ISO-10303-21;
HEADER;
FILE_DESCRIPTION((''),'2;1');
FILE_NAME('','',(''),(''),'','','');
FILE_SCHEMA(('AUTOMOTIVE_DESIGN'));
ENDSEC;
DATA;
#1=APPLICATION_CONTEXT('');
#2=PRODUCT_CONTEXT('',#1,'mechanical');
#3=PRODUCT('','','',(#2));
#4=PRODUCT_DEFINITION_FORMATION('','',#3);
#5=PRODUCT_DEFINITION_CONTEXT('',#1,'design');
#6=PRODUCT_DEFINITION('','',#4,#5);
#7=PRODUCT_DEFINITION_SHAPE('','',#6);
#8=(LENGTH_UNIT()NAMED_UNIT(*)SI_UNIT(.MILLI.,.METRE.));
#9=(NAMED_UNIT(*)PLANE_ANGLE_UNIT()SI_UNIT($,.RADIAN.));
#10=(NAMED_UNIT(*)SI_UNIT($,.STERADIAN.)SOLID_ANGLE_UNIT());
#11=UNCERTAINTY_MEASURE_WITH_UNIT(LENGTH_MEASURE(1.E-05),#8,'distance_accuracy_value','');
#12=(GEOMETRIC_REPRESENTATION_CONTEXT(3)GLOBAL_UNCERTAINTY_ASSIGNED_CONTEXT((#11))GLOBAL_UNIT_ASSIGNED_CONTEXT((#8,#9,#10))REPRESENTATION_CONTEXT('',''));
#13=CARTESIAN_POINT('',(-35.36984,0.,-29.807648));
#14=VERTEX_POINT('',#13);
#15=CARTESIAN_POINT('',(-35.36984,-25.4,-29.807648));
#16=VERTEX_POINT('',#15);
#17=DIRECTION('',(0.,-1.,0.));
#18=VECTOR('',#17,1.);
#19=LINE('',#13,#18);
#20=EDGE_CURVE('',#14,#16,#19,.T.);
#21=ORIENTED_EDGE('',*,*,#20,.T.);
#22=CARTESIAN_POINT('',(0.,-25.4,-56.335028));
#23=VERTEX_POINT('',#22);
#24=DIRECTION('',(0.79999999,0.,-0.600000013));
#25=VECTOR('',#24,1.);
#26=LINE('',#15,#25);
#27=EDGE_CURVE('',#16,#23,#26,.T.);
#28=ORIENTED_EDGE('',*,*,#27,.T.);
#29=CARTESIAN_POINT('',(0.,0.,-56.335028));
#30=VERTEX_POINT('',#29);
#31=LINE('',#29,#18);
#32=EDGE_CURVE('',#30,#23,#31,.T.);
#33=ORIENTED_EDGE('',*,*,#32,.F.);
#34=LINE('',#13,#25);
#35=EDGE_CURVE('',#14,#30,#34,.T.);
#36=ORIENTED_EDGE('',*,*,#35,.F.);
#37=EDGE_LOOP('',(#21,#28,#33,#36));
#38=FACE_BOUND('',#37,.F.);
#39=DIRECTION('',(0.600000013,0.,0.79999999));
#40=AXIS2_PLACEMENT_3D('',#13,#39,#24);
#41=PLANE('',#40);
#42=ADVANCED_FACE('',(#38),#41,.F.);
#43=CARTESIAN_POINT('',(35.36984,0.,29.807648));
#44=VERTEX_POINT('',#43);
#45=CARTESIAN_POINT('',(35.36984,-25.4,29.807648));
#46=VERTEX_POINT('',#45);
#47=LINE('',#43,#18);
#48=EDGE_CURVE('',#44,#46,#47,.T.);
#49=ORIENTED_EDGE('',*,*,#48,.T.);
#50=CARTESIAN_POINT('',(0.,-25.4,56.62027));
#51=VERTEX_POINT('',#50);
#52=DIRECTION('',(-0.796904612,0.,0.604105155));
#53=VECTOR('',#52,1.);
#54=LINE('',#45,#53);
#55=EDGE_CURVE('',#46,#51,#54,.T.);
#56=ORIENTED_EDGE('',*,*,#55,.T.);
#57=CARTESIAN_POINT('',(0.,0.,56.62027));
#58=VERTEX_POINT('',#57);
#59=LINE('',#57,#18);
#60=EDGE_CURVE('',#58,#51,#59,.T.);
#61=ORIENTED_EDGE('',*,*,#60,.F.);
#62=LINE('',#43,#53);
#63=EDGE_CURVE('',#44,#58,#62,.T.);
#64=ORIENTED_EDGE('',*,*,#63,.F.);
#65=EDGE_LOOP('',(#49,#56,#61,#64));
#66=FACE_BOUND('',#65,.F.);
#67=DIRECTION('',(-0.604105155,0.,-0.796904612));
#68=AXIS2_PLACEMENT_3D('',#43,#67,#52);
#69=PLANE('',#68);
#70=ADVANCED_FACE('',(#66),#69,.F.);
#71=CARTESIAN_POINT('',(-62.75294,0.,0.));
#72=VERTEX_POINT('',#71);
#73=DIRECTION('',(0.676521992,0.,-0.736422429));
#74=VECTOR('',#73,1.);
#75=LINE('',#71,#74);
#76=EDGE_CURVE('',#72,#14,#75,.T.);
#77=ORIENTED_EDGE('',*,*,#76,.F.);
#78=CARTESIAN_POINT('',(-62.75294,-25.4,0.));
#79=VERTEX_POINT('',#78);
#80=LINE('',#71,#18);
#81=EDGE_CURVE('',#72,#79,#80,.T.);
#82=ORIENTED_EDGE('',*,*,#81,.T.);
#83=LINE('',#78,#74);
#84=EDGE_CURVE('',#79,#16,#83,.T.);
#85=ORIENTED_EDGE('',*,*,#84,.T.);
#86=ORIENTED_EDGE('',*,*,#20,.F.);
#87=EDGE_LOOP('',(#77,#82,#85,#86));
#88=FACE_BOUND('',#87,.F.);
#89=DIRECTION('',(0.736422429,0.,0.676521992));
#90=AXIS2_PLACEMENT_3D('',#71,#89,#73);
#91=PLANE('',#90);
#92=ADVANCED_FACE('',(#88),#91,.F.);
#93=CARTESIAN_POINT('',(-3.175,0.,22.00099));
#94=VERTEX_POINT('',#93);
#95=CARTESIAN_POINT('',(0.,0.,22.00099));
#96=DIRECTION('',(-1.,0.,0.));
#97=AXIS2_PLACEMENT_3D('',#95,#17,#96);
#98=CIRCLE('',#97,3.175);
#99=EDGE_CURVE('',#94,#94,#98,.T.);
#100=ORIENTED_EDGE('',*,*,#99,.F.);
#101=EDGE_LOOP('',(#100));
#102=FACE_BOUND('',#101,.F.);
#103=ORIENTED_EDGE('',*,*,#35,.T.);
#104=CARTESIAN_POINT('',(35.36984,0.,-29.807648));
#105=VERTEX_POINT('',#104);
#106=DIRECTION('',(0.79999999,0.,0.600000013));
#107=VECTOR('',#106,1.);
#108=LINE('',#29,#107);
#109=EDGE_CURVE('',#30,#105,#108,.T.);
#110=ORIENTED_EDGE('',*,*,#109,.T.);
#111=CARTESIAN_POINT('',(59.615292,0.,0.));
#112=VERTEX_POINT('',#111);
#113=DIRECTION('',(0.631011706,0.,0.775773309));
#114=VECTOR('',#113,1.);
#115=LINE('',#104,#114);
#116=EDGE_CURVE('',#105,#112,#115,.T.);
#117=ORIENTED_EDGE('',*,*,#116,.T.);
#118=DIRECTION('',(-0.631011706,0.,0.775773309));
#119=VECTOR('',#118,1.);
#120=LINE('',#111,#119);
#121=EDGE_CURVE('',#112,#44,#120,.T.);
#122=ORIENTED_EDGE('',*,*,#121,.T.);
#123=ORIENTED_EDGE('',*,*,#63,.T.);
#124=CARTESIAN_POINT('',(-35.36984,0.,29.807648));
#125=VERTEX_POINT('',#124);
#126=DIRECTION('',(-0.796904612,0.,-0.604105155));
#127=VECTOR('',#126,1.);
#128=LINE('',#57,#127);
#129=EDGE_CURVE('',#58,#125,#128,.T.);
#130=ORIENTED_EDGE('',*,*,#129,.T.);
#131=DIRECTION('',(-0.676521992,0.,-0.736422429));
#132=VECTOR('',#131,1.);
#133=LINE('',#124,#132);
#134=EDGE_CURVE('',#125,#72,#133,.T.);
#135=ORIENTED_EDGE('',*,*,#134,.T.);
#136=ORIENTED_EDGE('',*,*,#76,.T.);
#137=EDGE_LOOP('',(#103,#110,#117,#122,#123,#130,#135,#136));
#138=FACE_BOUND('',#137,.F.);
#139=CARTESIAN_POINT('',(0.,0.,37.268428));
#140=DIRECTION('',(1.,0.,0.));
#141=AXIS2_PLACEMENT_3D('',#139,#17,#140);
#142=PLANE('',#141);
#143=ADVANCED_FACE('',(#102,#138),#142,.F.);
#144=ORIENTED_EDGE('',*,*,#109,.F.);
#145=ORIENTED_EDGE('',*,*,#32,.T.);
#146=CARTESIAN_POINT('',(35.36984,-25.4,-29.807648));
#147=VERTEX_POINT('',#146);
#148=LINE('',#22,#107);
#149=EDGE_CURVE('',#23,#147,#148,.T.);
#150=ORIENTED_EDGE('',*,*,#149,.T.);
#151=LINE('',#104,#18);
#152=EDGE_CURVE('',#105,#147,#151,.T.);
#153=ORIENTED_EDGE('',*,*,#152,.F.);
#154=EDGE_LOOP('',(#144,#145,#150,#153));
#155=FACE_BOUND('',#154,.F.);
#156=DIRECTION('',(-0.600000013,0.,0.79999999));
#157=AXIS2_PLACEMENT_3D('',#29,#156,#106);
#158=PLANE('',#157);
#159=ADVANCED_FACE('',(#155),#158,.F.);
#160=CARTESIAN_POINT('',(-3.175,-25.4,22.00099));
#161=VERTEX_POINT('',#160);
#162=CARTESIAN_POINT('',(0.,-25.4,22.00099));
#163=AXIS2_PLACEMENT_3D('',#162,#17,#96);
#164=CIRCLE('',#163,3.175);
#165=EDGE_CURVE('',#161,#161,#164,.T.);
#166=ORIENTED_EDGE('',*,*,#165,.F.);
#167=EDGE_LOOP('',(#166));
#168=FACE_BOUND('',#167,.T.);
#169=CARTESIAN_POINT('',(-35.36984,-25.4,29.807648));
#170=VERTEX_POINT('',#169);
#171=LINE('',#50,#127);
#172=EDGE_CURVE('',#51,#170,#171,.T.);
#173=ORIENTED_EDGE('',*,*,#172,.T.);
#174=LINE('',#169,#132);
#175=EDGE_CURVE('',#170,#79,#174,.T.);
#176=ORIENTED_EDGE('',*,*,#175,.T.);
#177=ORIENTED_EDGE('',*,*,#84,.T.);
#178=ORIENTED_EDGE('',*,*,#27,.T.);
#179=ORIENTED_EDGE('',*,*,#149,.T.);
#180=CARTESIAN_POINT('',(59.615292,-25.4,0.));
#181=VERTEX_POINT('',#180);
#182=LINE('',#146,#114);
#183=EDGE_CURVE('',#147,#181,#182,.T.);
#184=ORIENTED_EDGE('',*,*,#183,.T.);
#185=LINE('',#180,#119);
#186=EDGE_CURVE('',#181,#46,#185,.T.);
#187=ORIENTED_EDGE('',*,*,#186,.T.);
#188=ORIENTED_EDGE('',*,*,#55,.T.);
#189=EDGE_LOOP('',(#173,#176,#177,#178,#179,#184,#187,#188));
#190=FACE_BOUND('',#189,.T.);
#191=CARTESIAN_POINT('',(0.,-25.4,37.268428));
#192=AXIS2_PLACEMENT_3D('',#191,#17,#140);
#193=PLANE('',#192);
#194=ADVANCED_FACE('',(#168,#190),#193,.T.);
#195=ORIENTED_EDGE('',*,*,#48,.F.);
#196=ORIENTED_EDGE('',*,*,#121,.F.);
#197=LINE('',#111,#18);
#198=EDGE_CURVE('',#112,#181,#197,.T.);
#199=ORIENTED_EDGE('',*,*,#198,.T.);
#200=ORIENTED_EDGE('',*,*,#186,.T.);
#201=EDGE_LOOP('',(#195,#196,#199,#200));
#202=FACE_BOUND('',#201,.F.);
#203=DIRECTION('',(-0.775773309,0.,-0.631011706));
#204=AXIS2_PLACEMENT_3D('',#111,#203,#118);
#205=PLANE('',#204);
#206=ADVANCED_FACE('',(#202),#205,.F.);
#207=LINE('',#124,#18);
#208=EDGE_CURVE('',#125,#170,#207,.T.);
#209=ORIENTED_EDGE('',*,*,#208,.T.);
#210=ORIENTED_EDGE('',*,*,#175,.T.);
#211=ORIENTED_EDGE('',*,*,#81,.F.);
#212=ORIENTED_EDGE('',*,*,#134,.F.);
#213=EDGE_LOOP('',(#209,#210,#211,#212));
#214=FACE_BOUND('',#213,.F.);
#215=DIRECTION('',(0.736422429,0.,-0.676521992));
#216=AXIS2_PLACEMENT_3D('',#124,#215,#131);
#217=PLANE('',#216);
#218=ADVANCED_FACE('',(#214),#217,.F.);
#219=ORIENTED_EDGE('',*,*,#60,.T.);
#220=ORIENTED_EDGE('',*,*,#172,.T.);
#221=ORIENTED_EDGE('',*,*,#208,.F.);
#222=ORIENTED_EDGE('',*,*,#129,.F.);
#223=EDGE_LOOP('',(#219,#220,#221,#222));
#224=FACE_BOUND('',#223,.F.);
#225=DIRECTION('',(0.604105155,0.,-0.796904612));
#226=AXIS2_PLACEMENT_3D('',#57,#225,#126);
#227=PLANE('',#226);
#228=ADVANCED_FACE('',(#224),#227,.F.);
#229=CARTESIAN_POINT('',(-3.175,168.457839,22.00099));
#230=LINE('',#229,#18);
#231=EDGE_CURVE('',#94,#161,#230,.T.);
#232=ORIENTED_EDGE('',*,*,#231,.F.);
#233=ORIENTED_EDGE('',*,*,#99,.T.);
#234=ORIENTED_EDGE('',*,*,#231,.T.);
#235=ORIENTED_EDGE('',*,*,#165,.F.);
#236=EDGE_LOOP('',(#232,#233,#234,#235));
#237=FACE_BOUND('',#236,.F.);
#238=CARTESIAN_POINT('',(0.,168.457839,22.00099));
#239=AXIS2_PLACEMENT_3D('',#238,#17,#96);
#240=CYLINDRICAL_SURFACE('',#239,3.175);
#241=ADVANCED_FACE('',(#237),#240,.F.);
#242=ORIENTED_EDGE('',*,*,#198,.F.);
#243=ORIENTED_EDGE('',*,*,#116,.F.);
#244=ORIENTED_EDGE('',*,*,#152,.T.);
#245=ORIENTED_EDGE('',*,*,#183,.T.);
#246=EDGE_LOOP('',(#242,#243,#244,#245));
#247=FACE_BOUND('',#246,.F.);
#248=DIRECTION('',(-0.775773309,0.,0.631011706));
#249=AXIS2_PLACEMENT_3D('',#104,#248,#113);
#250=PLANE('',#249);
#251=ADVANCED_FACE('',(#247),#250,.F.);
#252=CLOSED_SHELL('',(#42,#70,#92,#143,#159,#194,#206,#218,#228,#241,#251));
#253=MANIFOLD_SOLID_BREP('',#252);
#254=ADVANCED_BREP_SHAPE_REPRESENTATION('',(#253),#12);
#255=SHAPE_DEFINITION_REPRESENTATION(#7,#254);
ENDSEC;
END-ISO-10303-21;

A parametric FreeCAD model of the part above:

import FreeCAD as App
import Part
import Sketcher
Q = App.Units.Quantity

doc = App.newDocument("Part")
body = doc.addObject("PartDesign::Body", "Body")

sketch1 = body.newObject("Sketcher::SketchObject", "Sketch")
sketch1.AttachmentSupport = (doc.getObject("XZ_Plane"), [""])
sketch1.MapMode = "FlatFace"
sketch1.addGeometry(Part.LineSegment(App.Vector(0, 57, 0), App.Vector(-35, 30, 0)), False)
sketch1.addGeometry(Part.LineSegment(App.Vector(-35, 30, 0), App.Vector(-63, 0, 0)), False)
sketch1.addGeometry(Part.LineSegment(App.Vector(-63, 0, 0), App.Vector(-35, -30, 0)), False)
sketch1.addGeometry(Part.LineSegment(App.Vector(-35, -30, 0), App.Vector(0, -56, 0)), False)
sketch1.addGeometry(Part.LineSegment(App.Vector(0, -56, 0), App.Vector(35, -30, 0)), False)
sketch1.addGeometry(Part.LineSegment(App.Vector(35, -30, 0), App.Vector(60, 0, 0)), False)
sketch1.addGeometry(Part.LineSegment(App.Vector(60, 0, 0), App.Vector(35, 30, 0)), False)
sketch1.addGeometry(Part.LineSegment(App.Vector(35, 30, 0), App.Vector(0, 57, 0)), False)
sketch1.addConstraint(Sketcher.Constraint("Coincident", 0, 2, 1, 1))
sketch1.addConstraint(Sketcher.Constraint("Coincident", 1, 2, 2, 1))
sketch1.addConstraint(Sketcher.Constraint("Coincident", 2, 2, 3, 1))
sketch1.addConstraint(Sketcher.Constraint("Coincident", 3, 2, 4, 1))
sketch1.addConstraint(Sketcher.Constraint("Coincident", 4, 2, 5, 1))
sketch1.addConstraint(Sketcher.Constraint("Coincident", 5, 2, 6, 1))
sketch1.addConstraint(Sketcher.Constraint("Coincident", 6, 2, 7, 1))
sketch1.addConstraint(Sketcher.Constraint("Coincident", 7, 2, 0, 1))
sketch1.addConstraint(Sketcher.Constraint("Symmetric", 0, 2, 4, 2, -1, 1))
sketch1.addConstraint(Sketcher.Constraint("Symmetric", 2, 2, 6, 2, -1, 1))
sketch1.addConstraint(Sketcher.Constraint("Symmetric", 2, 2, 4, 2, -2))
sketch1.addConstraint(Sketcher.Constraint("PointOnObject", 1, 2, -1))
sketch1.addConstraint(Sketcher.Constraint("PointOnObject", 3, 2, -2))
sketch1.addConstraint(Sketcher.Constraint("PointOnObject", 5, 2, -1))
sketch1.addConstraint(Sketcher.Constraint("PointOnObject", 7, 2, -2))
sketch1.addConstraint(Sketcher.Constraint("Distance", 3, Q("44.2123 mm")))
sketch1.addConstraint(Sketcher.Constraint("DistanceX", 1, 2, 0, 2, Q("27.3831 mm")))
sketch1.addConstraint(Sketcher.Constraint("Distance", 0, Q("44.384032 mm")))
sketch1.addConstraint(Sketcher.Constraint("Distance", 1, Q("40.47629 mm")))
sketch1.addConstraint(Sketcher.Constraint("Distance", 5, Q("38.423142 mm")))
sketch1.addConstraint(Sketcher.Constraint("DistanceX", 0, 2, -1, 1, Q("35.36984 mm")))
pad1 = body.newObject("PartDesign::Pad", "Pad")
pad1.Profile = sketch1
pad1.Length = Q("1 in")

sketch2 = body.newObject("Sketcher::SketchObject", "Sketch001")
sketch2.AttachmentSupport = (doc.getObject("XZ_Plane"), [""])
sketch2.MapMode = "FlatFace"
sketch2.addGeometry(Part.Circle(App.Vector(0, 0, 0), App.Vector(0, 0, 1), 16), False)
sketch2.addConstraint(Sketcher.Constraint("Coincident", 0, 3, -1, 1))
sketch2.addConstraint(Sketcher.Constraint("Diameter", 0, Q("32.881947 mm")))
pad2 = body.newObject("PartDesign::Pad", "Pad001")
pad2.Profile = sketch2
pad2.Length = Q("1 in")

sketch3 = body.newObject("Sketcher::SketchObject", "Sketch002")
sketch3.AttachmentSupport = (doc.getObject("XZ_Plane"), [""])
sketch3.MapMode = "FlatFace"
sketch3.addGeometry(Part.Circle(App.Vector(0, 22, 0), App.Vector(0, 0, 1), 3.2), False)
sketch3.addConstraint(Sketcher.Constraint("PointOnObject", 0, 3, -2))
sketch3.addConstraint(Sketcher.Constraint("Diameter", 0, Q("0.25 in")))
sketch3.addConstraint(Sketcher.Constraint("DistanceY", -1, 1, 0, 3, Q("22.00099 mm")))
doc.recompute()
hole = body.newObject("PartDesign::Hole", "Hole")
hole.Profile = sketch3
hole.ThreadType = "None"
hole.Diameter = Q("0.25 in")
hole.DepthType = "ThroughAll"
hole.Reversed = True

doc.recompute()
